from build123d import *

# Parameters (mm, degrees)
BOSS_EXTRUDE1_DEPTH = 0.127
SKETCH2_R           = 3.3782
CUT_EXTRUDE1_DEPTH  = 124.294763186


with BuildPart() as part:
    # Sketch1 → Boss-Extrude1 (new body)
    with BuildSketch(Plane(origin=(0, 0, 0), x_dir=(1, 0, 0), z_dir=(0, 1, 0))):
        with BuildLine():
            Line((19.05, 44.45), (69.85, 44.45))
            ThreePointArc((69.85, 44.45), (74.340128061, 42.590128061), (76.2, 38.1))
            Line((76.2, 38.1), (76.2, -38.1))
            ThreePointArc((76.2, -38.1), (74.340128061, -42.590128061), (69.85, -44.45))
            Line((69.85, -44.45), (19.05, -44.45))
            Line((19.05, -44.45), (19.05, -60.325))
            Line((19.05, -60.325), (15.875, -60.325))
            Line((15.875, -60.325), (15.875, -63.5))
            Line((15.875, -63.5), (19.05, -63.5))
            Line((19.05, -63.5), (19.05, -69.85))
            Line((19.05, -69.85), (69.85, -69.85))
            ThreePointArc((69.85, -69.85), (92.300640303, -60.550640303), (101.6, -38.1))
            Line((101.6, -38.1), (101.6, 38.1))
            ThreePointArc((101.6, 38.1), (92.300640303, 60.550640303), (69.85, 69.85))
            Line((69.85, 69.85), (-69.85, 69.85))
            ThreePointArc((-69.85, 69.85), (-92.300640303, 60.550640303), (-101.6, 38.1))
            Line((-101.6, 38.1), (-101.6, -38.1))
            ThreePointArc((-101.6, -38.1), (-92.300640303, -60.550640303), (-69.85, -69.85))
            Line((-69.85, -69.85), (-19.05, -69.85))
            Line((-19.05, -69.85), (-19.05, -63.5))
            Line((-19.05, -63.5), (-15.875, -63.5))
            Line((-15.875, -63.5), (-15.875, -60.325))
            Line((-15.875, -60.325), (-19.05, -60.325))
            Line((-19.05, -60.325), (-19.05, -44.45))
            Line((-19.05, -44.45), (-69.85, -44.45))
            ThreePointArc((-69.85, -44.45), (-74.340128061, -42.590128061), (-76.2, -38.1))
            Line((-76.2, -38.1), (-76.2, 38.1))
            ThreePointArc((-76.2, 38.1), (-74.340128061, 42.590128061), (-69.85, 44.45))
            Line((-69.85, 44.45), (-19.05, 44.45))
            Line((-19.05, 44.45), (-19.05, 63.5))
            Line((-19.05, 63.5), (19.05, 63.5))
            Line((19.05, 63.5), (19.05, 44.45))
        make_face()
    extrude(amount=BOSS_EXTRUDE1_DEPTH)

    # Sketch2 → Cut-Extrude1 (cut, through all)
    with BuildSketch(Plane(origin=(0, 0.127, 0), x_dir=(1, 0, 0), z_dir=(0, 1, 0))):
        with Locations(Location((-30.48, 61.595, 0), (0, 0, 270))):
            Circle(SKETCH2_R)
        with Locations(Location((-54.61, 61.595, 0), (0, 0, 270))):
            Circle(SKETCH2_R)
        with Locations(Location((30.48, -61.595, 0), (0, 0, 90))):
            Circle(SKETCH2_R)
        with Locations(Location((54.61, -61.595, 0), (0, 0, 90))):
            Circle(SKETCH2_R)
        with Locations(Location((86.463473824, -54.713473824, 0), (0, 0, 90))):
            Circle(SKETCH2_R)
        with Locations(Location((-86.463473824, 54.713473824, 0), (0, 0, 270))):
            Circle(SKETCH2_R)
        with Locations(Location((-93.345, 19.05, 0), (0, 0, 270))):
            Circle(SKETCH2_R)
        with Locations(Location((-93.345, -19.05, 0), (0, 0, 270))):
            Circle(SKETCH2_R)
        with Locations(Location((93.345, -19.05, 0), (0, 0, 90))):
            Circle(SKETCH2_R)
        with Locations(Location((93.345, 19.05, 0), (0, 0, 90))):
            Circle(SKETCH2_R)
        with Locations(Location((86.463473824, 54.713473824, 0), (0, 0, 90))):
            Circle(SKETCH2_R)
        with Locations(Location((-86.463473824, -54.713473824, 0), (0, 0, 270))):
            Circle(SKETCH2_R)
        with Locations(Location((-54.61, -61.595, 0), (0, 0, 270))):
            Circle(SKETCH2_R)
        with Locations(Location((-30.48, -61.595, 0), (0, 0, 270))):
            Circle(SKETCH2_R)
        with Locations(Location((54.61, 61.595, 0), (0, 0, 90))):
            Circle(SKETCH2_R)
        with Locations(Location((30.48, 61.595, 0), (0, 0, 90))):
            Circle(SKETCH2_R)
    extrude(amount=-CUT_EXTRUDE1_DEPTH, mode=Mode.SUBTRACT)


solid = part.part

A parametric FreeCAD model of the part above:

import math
import FreeCAD as App
import Part
import Sketcher
Q = App.Units.Quantity

doc = App.newDocument("Part")
body = doc.addObject("PartDesign::Body", "Body")

sketch1 = doc.addObject("Sketcher::SketchObject", "Sketch")
body.addObject(sketch1)
sketch1.AttachmentSupport = (doc.XZ_Plane, [""])
sketch1.MapMode = "FlatFace"
sketch1.addGeometry(Part.LineSegment(App.Vector(19.1, -44.5, 0), App.Vector(69.8, -44.5, 0)), False)
sketch1.addGeometry(Part.ArcOfCircle(Part.Circle(App.Vector(69.9, -38.1, 0), App.Vector(0, 0, 1), 6.3), math.radians(-90), math.radians(0)), False)
sketch1.addGeometry(Part.LineSegment(App.Vector(76.2, -38.1, 0), App.Vector(76.2, 38.1, 0)), False)
sketch1.addGeometry(Part.ArcOfCircle(Part.Circle(App.Vector(69.9, 38.1, 0), App.Vector(0, 0, 1), 6.3), math.radians(0), math.radians(90)), False)
sketch1.addGeometry(Part.LineSegment(App.Vector(69.8, 44.5, 0), App.Vector(19.1, 44.5, 0)), False)
sketch1.addGeometry(Part.LineSegment(App.Vector(19.1, 44.5, 0), App.Vector(19.1, 60.3, 0)), False)
sketch1.addGeometry(Part.LineSegment(App.Vector(19.1, 60.3, 0), App.Vector(15.9, 60.3, 0)), False)
sketch1.addGeometry(Part.LineSegment(App.Vector(15.9, 60.3, 0), App.Vector(15.9, 63.5, 0)), False)
sketch1.addGeometry(Part.LineSegment(App.Vector(15.9, 63.5, 0), App.Vector(19.1, 63.5, 0)), False)
sketch1.addGeometry(Part.LineSegment(App.Vector(19.1, 63.5, 0), App.Vector(19.1, 69.8, 0)), False)
sketch1.addGeometry(Part.LineSegment(App.Vector(19.1, 69.8, 0), App.Vector(69.8, 69.8, 0)), False)
sketch1.addGeometry(Part.ArcOfCircle(Part.Circle(App.Vector(69.9, 38.1, 0), App.Vector(0, 0, 1), 31.7), math.radians(0), math.radians(90)), False)
sketch1.addGeometry(Part.LineSegment(App.Vector(101.6, 38.1, 0), App.Vector(101.6, -38.1, 0)), False)
sketch1.addGeometry(Part.ArcOfCircle(Part.Circle(App.Vector(69.9, -38.1, 0), App.Vector(0, 0, 1), 31.7), math.radians(-90), math.radians(0)), False)
sketch1.addGeometry(Part.LineSegment(App.Vector(69.8, -69.8, 0), App.Vector(-69.8, -69.8, 0)), False)
sketch1.addGeometry(Part.ArcOfCircle(Part.Circle(App.Vector(-69.9, -38.1, 0), App.Vector(0, 0, 1), 31.7), math.radians(180), math.radians(270)), False)
sketch1.addGeometry(Part.LineSegment(App.Vector(-101.6, -38.1, 0), App.Vector(-101.6, 38.1, 0)), False)
sketch1.addGeometry(Part.ArcOfCircle(Part.Circle(App.Vector(-69.9, 38.1, 0), App.Vector(0, 0, 1), 31.7), math.radians(90), math.radians(180)), False)
sketch1.addGeometry(Part.LineSegment(App.Vector(-69.8, 69.8, 0), App.Vector(-19.1, 69.8, 0)), False)
sketch1.addGeometry(Part.LineSegment(App.Vector(-19.1, 69.8, 0), App.Vector(-19.1, 63.5, 0)), False)
sketch1.addGeometry(Part.LineSegment(App.Vector(-19.1, 63.5, 0), App.Vector(-15.9, 63.5, 0)), False)
sketch1.addGeometry(Part.LineSegment(App.Vector(-15.9, 63.5, 0), App.Vector(-15.9, 60.3, 0)), False)
sketch1.addGeometry(Part.LineSegment(App.Vector(-15.9, 60.3, 0), App.Vector(-19.1, 60.3, 0)), False)
sketch1.addGeometry(Part.LineSegment(App.Vector(-19.1, 60.3, 0), App.Vector(-19.1, 44.5, 0)), False)
sketch1.addGeometry(Part.LineSegment(App.Vector(-19.1, 44.5, 0), App.Vector(-69.8, 44.5, 0)), False)
sketch1.addGeometry(Part.ArcOfCircle(Part.Circle(App.Vector(-69.9, 38.1, 0), App.Vector(0, 0, 1), 6.3), math.radians(90), math.radians(180)), False)
sketch1.addGeometry(Part.LineSegment(App.Vector(-76.2, 38.1, 0), App.Vector(-76.2, -38.1, 0)), False)
sketch1.addGeometry(Part.ArcOfCircle(Part.Circle(App.Vector(-69.9, -38.1, 0), App.Vector(0, 0, 1), 6.3), math.radians(180), math.radians(270)), False)
sketch1.addGeometry(Part.LineSegment(App.Vector(-69.8, -44.5, 0), App.Vector(-19.1, -44.5, 0)), False)
sketch1.addGeometry(Part.LineSegment(App.Vector(-19.1, -44.5, 0), App.Vector(-19.1, -63.5, 0)), False)
sketch1.addGeometry(Part.LineSegment(App.Vector(-19.1, -63.5, 0), App.Vector(19.1, -63.5, 0)), False)
sketch1.addGeometry(Part.LineSegment(App.Vector(19.1, -63.5, 0), App.Vector(19.1, -44.5, 0)), False)
sketch1.addConstraint(Sketcher.Constraint("Tangent", 0, 2, 1, 1))
sketch1.addConstraint(Sketcher.Constraint("Tangent", 1, 2, 2, 1))
sketch1.addConstraint(Sketcher.Constraint("Tangent", 2, 2, 3, 1))
sketch1.addConstraint(Sketcher.Constraint("Tangent", 3, 2, 4, 1))
sketch1.addConstraint(Sketcher.Constraint("Coincident", 4, 2, 5, 1))
sketch1.addConstraint(Sketcher.Constraint("Coincident", 5, 2, 6, 1))
sketch1.addConstraint(Sketcher.Constraint("Coincident", 6, 2, 7, 1))
sketch1.addConstraint(Sketcher.Constraint("Coincident", 7, 2, 8, 1))
sketch1.addConstraint(Sketcher.Constraint("Coincident", 8, 2, 9, 1))
sketch1.addConstraint(Sketcher.Constraint("Coincident", 9, 2, 10, 1))
sketch1.addConstraint(Sketcher.Constraint("Tangent", 10, 2, 11, 2))
sketch1.addConstraint(Sketcher.Constraint("Tangent", 11, 1, 12, 1))
sketch1.addConstraint(Sketcher.Constraint("Tangent", 12, 2, 13, 2))
sketch1.addConstraint(Sketcher.Constraint("Tangent", 13, 1, 14, 1))
sketch1.addConstraint(Sketcher.Constraint("Tangent", 14, 2, 15, 2))
sketch1.addConstraint(Sketcher.Constraint("Tangent", 15, 1, 16, 1))
sketch1.addConstraint(Sketcher.Constraint("Tangent", 16, 2, 17, 2))
sketch1.addConstraint(Sketcher.Constraint("Tangent", 17, 1, 18, 1))
sketch1.addConstraint(Sketcher.Constraint("Coincident", 18, 2, 19, 1))
sketch1.addConstraint(Sketcher.Constraint("Coincident", 19, 2, 20, 1))
sketch1.addConstraint(Sketcher.Constraint("Coincident", 20, 2, 21, 1))
sketch1.addConstraint(Sketcher.Constraint("Coincident", 21, 2, 22, 1))
sketch1.addConstraint(Sketcher.Constraint("Coincident", 22, 2, 23, 1))
sketch1.addConstraint(Sketcher.Constraint("Coincident", 23, 2, 24, 1))
sketch1.addConstraint(Sketcher.Constraint("Tangent", 24, 2, 25, 1))
sketch1.addConstraint(Sketcher.Constraint("Tangent", 25, 2, 26, 1))
sketch1.addConstraint(Sketcher.Constraint("Tangent", 26, 2, 27, 1))
sketch1.addConstraint(Sketcher.Constraint("Tangent", 27, 2, 28, 1))
sketch1.addConstraint(Sketcher.Constraint("Coincident", 28, 2, 29, 1))
sketch1.addConstraint(Sketcher.Constraint("Coincident", 29, 2, 30, 1))
sketch1.addConstraint(Sketcher.Constraint("Coincident", 30, 2, 31, 1))
sketch1.addConstraint(Sketcher.Constraint("Coincident", 31, 2, 0, 1))
sketch1.addConstraint(Sketcher.Constraint("Horizontal", 0))
sketch1.addConstraint(Sketcher.Constraint("Vertical", 2))
sketch1.addConstraint(Sketcher.Constraint("Horizontal", 4))
sketch1.addConstraint(Sketcher.Constraint("Vertical", 5))
sketch1.addConstraint(Sketcher.Constraint("Horizontal", 6))
sketch1.addConstraint(Sketcher.Constraint("Vertical", 7))
sketch1.addConstraint(Sketcher.Constraint("Horizontal", 8))
sketch1.addConstraint(Sketcher.Constraint("Vertical", 9))
sketch1.addConstraint(Sketcher.Constraint("Horizontal", 10))
sketch1.addConstraint(Sketcher.Constraint("Vertical", 12))
sketch1.addConstraint(Sketcher.Constraint("Horizontal", 14))
sketch1.addConstraint(Sketcher.Constraint("Vertical", 16))
sketch1.addConstraint(Sketcher.Constraint("Horizontal", 18))
sketch1.addConstraint(Sketcher.Constraint("Vertical", 19))
sketch1.addConstraint(Sketcher.Constraint("Horizontal", 20))
sketch1.addConstraint(Sketcher.Constraint("Vertical", 21))
sketch1.addConstraint(Sketcher.Constraint("Horizontal", 22))
sketch1.addConstraint(Sketcher.Constraint("Vertical", 23))
sketch1.addConstraint(Sketcher.Constraint("Horizontal", 24))
sketch1.addConstraint(Sketcher.Constraint("Vertical", 26))
sketch1.addConstraint(Sketcher.Constraint("Horizontal", 28))
sketch1.addConstraint(Sketcher.Constraint("Vertical", 29))
sketch1.addConstraint(Sketcher.Constraint("Horizontal", 30))
sketch1.addConstraint(Sketcher.Constraint("Vertical", 31))
sketch1.addConstraint(Sketcher.Constraint("Coincident", 11, 3, 3, 3))
sketch1.addConstraint(Sketcher.Constraint("Coincident", 13, 3, 1, 3))
sketch1.addConstraint(Sketcher.Constraint("Coincident", 25, 3, 17, 3))
sketch1.addConstraint(Sketcher.Constraint("Coincident", 27, 3, 15, 3))
sketch1.addConstraint(Sketcher.Constraint("Equal", 1, 3))
sketch1.addConstraint(Sketcher.Constraint("Equal", 13, 15))
sketch1.addConstraint(Sketcher.Constraint("Equal", 15, 17))
sketch1.addConstraint(Sketcher.Constraint("Equal", 3, 25))
sketch1.addConstraint(Sketcher.Constraint("Symmetric", 3, 3, 15, 3, -1, 1))
sketch1.addConstraint(Sketcher.Constraint("Symmetric", 8, 2, 29, 2, -1, 1))
sketch1.addConstraint(Sketcher.Constraint("Symmetric", 19, 2, 30, 2, -1, 1))
sketch1.addConstraint(Sketcher.Constraint("Symmetric", 23, 2, 31, 2, -1, 1))
sketch1.addConstraint(Sketcher.Constraint("Symmetric", 6, 2, 21, 2, -2))
sketch1.addConstraint(Sketcher.Constraint("Vertical", 5, 2, 8, 2))
sketch1.addConstraint(Sketcher.Constraint("Vertical", 23, 2, 28, 2))
sketch1.addConstraint(Sketcher.Constraint("Equal", 22, 7))
sketch1.addConstraint(Sketcher.Constraint("DistanceX", 0, 1, 0, 2, Q("2 in")))
sketch1.addConstraint(Sketcher.Constraint("DistanceY", 2, 1, 2, 2, Q("3 in")))
sketch1.addConstraint(Sketcher.Constraint("Radius", 1, Q("0.25 in")))
sketch1.addConstraint(Sketcher.Constraint("Radius", 11, Q("1.25 in")))
sketch1.addConstraint(Sketcher.Constraint("DistanceX", 14, 2, 14, 1, Q("5.5 in")))
sketch1.addConstraint(Sketcher.Constraint("DistanceY", 11, 3, 7, 2, Q("1 in")))
sketch1.addConstraint(Sketcher.Constraint("DistanceX", 6, 2, 6, 1, Q("0.125 in")))
pad1 = doc.addObject("PartDesign::Pad", "Pad")
body.addObject(pad1)
pad1.Profile = sketch1
pad1.Length = Q("0.005 in")
pad1.Reversed = True

sketch2 = doc.addObject("Sketcher::SketchObject", "Sketch001")
body.addObject(sketch2)
sketch2.AttachmentSupport = (doc.XZ_Plane, [""])
sketch2.MapMode = "FlatFace"
sketch2.AttachmentOffset = App.Placement(App.Vector(0, 0, -0.005 * 25.4), App.Rotation())
sketch2.addGeometry(Part.Circle(App.Vector(-30.5, -61.6, 0), App.Vector(0, 0, 1), 3.4), False)
sketch2.addGeometry(Part.Circle(App.Vector(-54.6, -61.6, 0), App.Vector(0, 0, 1), 3.4), False)
sketch2.addGeometry(Part.Circle(App.Vector(30.5, 61.6, 0), App.Vector(0, 0, 1), 3.4), False)
sketch2.addGeometry(Part.Circle(App.Vector(54.6, 61.6, 0), App.Vector(0, 0, 1), 3.4), False)
sketch2.addGeometry(Part.Circle(App.Vector(86.5, 54.7, 0), App.Vector(0, 0, 1), 3.4), False)
sketch2.addGeometry(Part.Circle(App.Vector(-86.5, -54.7, 0), App.Vector(0, 0, 1), 3.4), False)
sketch2.addGeometry(Part.Circle(App.Vector(-93.3, -19.1, 0), App.Vector(0, 0, 1), 3.4), False)
sketch2.addGeometry(Part.Circle(App.Vector(-93.3, 19.1, 0), App.Vector(0, 0, 1), 3.4), False)
sketch2.addGeometry(Part.Circle(App.Vector(93.3, 19.1, 0), App.Vector(0, 0, 1), 3.4), False)
sketch2.addGeometry(Part.Circle(App.Vector(93.3, -19.1, 0), App.Vector(0, 0, 1), 3.4), False)
sketch2.addGeometry(Part.Circle(App.Vector(86.5, -54.7, 0), App.Vector(0, 0, 1), 3.4), False)
sketch2.addGeometry(Part.Circle(App.Vector(-86.5, 54.7, 0), App.Vector(0, 0, 1), 3.4), False)
sketch2.addGeometry(Part.Circle(App.Vector(-54.6, 61.6, 0), App.Vector(0, 0, 1), 3.4), False)
sketch2.addGeometry(Part.Circle(App.Vector(-30.5, 61.6, 0), App.Vector(0, 0, 1), 3.4), False)
sketch2.addGeometry(Part.Circle(App.Vector(54.6, -61.6, 0), App.Vector(0, 0, 1), 3.4), False)
sketch2.addGeometry(Part.Circle(App.Vector(30.5, -61.6, 0), App.Vector(0, 0, 1), 3.4), False)
sketch2.addConstraint(Sketcher.Constraint("Equal", 0, 1))
sketch2.addConstraint(Sketcher.Constraint("Equal", 1, 2))
sketch2.addConstraint(Sketcher.Constraint("Equal", 2, 3))
sketch2.addConstraint(Sketcher.Constraint("Equal", 3, 4))
sketch2.addConstraint(Sketcher.Constraint("Equal", 4, 5))
sketch2.addConstraint(Sketcher.Constraint("Equal", 5, 6))
sketch2.addConstraint(Sketcher.Constraint("Equal", 6, 7))
sketch2.addConstraint(Sketcher.Constraint("Equal", 7, 8))
sketch2.addConstraint(Sketcher.Constraint("Equal", 8, 9))
sketch2.addConstraint(Sketcher.Constraint("Equal", 9, 10))
sketch2.addConstraint(Sketcher.Constraint("Equal", 10, 11))
sketch2.addConstraint(Sketcher.Constraint("Equal", 11, 12))
sketch2.addConstraint(Sketcher.Constraint("Equal", 12, 13))
sketch2.addConstraint(Sketcher.Constraint("Equal", 13, 14))
sketch2.addConstraint(Sketcher.Constraint("Equal", 14, 15))
sketch2.addConstraint(Sketcher.Constraint("Symmetric", 0, 3, 2, 3, -1, 1))
sketch2.addConstraint(Sketcher.Constraint("Symmetric", 1, 3, 3, 3, -1, 1))
sketch2.addConstraint(Sketcher.Constraint("Symmetric", 4, 3, 5, 3, -1, 1))
sketch2.addConstraint(Sketcher.Constraint("Symmetric", 6, 3, 8, 3, -1, 1))
sketch2.addConstraint(Sketcher.Constraint("Symmetric", 7, 3, 9, 3, -1, 1))
sketch2.addConstraint(Sketcher.Constraint("Symmetric", 10, 3, 11, 3, -1, 1))
sketch2.addConstraint(Sketcher.Constraint("Symmetric", 12, 3, 14, 3, -1, 1))
sketch2.addConstraint(Sketcher.Constraint("Symmetric", 13, 3, 15, 3, -1, 1))
sketch2.addConstraint(Sketcher.Constraint("Symmetric", 7, 3, 8, 3, -2))
sketch2.addConstraint(Sketcher.Constraint("Symmetric", 5, 3, 10, 3, -2))
sketch2.addConstraint(Sketcher.Constraint("Symmetric", 3, 3, 12, 3, -2))
sketch2.addConstraint(Sketcher.Constraint("Symmetric", 2, 3, 13, 3, -2))
sketch2.addConstraint(Sketcher.Constraint("Horizontal", 0, 3, 1, 3))
sketch2.addConstraint(Sketcher.Constraint("Diameter", 0, Q("0.266 in")))
sketch2.addConstraint(Sketcher.Constraint("DistanceX", 0, 3, -1, 1, Q("1.2 in")))
sketch2.addConstraint(Sketcher.Constraint("DistanceX", 1, 3, 3, 3, Q("4.3 in")))
sketch2.addConstraint(Sketcher.Constraint("DistanceY", 6, 3, 7, 3, Q("1.5 in")))
sketch2.addConstraint(Sketcher.Constraint("DistanceY", 0, 3, 2, 3, Q("4.85 in")))
sketch2.addConstraint(Sketcher.Constraint("DistanceX", 6, 3, -1, 1, Q("3.675 in")))
sketch2.addConstraint(Sketcher.Constraint("DistanceX", -1, 1, 4, 3, 86.463474))
sketch2.addConstraint(Sketcher.Constraint("DistanceY", -1, 1, 4, 3, 54.713474))
pocket1 = doc.addObject("PartDesign::Pocket", "Pocket")
body.addObject(pocket1)
pocket1.Profile = sketch2
pocket1.Type = "ThroughAll"
pocket1.Reversed = True

doc.recompute()
